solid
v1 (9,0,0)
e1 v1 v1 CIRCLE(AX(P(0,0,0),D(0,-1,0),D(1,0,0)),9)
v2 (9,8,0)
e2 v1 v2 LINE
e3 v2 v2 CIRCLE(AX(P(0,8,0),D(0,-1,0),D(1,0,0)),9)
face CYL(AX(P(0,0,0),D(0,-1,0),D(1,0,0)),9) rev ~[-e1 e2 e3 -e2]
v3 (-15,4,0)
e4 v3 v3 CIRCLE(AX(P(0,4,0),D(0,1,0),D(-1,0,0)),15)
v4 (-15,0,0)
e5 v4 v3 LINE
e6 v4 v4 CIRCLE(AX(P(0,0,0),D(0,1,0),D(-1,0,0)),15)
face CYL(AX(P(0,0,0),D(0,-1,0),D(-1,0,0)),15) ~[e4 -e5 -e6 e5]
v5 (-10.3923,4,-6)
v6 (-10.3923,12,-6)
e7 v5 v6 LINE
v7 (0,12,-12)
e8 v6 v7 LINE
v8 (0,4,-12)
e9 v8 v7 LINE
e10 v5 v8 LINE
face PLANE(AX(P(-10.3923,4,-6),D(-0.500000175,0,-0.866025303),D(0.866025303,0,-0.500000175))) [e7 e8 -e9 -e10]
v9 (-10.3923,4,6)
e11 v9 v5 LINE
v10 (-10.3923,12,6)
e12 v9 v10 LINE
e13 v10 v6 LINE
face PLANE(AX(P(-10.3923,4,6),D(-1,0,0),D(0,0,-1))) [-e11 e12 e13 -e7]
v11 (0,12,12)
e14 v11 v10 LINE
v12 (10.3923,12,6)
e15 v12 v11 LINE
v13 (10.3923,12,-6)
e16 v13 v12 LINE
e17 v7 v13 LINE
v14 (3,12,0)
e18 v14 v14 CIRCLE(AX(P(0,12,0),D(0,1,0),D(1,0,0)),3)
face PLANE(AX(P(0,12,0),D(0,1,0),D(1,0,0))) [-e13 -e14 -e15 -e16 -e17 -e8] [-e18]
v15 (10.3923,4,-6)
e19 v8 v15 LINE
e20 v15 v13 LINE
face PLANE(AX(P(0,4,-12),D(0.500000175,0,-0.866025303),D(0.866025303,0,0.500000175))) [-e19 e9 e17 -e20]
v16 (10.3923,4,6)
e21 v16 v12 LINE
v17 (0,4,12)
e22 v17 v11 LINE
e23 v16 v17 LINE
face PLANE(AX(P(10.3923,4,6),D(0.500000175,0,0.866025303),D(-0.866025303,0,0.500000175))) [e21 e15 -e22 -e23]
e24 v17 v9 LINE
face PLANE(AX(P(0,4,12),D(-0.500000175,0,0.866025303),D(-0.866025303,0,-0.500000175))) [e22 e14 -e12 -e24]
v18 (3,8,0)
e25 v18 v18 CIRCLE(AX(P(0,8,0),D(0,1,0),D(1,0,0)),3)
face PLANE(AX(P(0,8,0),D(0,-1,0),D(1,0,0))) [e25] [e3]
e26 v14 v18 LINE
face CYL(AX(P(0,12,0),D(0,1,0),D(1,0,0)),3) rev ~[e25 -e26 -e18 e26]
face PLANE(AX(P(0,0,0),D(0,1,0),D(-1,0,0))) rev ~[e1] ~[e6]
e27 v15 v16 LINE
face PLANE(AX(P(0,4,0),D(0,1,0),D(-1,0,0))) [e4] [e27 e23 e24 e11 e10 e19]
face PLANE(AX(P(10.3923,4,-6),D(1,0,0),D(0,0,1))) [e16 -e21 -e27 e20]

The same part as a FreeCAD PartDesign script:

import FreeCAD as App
import Part
import Sketcher

V = App.Vector


def add_polygon(sketch, points):
    """Adds a closed chain of lines whose ends are joined by coincident constraints."""
    first, n = sketch.GeometryCount, len(points)
    for a, b in zip(points, points[1:] + points[:1]):
        sketch.addGeometry(Part.LineSegment(App.Vector(*a, 0), App.Vector(*b, 0)), False)
    for i in range(n):
        sketch.addConstraint(Sketcher.Constraint("Coincident", first + i, 2, first + (i + 1) % n, 1))

doc = App.newDocument("Part")
body = doc.addObject("PartDesign::Body", "Body")

sketch1 = body.newObject("Sketcher::SketchObject", "Sketch")
sketch1.AttachmentSupport = (doc.getObject("XZ_Plane"), [""])
sketch1.MapMode = "FlatFace"
sketch1.addGeometry(Part.Circle(V(0, 0, 0), V(0, 0, 1), 15), False)
sketch1.addConstraint([
    Sketcher.Constraint("Coincident", 0, 3, -1, 1),
    Sketcher.Constraint("Diameter", 0, 30.0),
])
pad1 = body.newObject("PartDesign::Pad", "Pad")
pad1.Profile = sketch1
pad1.Length = 4
pad1.Reversed = True

sketch2 = body.newObject("Sketcher::SketchObject", "Sketch001")
sketch2.AttachmentSupport = (doc.getObject("XZ_Plane"), [""])
sketch2.MapMode = "FlatFace"
sketch2.AttachmentOffset = App.Placement(V(0, 0, -4), App.Rotation())
add_polygon(sketch2, [(10.3923, 6), (10.3923, -6), (0, -12), (-10.3923, -6), (-10.3923, 6), (0, 12)])
sketch2.addConstraint([
    Sketcher.Constraint("Vertical", 0),
    Sketcher.Constraint("Vertical", 3),
    Sketcher.Constraint("Symmetric", 0, 2, 3, 2, -1, 1),
    Sketcher.Constraint("Symmetric", 1, 2, 4, 2, -1, 1),
    Sketcher.Constraint("PointOnObject", 1, 2, -2),
    Sketcher.Constraint("Parallel", 2, 5),
    Sketcher.Constraint("Horizontal", 0, 2, 2, 2),
    Sketcher.Constraint("DistanceY", 0, 2, 0, 1, 12.0),
    Sketcher.Constraint("Distance", 1, 12.0),
    Sketcher.Constraint("DistanceY", 1, 2, -1, 1, 12.0),
])
pad2 = body.newObject("PartDesign::Pad", "Pad001")
pad2.Profile = sketch2
pad2.Length = 8
pad2.Reversed = True

sketch3 = body.newObject("Sketcher::SketchObject", "Sketch002")
sketch3.AttachmentSupport = (doc.getObject("XZ_Plane"), [""])
sketch3.MapMode = "FlatFace"
sketch3.addGeometry(Part.Circle(V(0, 0, 0), V(0, 0, 1), 9), False)
sketch3.addConstraint([
    Sketcher.Constraint("Coincident", 0, 3, -1, 1),
    Sketcher.Constraint("Diameter", 0, 18.0),
])
pocket1 = body.newObject("PartDesign::Pocket", "Pocket")
pocket1.Profile = sketch3
pocket1.Length = 8

sketch4 = body.newObject("Sketcher::SketchObject", "Sketch003")
sketch4.AttachmentSupport = (doc.getObject("XZ_Plane"), [""])
sketch4.MapMode = "FlatFace"
sketch4.AttachmentOffset = App.Placement(V(0, 0, -12), App.Rotation())
sketch4.addGeometry(Part.Circle(V(0, 0, 0), V(0, 0, 1), 3), False)
sketch4.addConstraint([
    Sketcher.Constraint("Coincident", 0, 3, -1, 1),
    Sketcher.Constraint("Diameter", 0, 6.0),
])
pocket2 = body.newObject("PartDesign::Pocket", "Pocket001")
pocket2.Profile = sketch4
pocket2.Type = "UpToFirst"
pocket2.Reversed = True

doc.recompute()
